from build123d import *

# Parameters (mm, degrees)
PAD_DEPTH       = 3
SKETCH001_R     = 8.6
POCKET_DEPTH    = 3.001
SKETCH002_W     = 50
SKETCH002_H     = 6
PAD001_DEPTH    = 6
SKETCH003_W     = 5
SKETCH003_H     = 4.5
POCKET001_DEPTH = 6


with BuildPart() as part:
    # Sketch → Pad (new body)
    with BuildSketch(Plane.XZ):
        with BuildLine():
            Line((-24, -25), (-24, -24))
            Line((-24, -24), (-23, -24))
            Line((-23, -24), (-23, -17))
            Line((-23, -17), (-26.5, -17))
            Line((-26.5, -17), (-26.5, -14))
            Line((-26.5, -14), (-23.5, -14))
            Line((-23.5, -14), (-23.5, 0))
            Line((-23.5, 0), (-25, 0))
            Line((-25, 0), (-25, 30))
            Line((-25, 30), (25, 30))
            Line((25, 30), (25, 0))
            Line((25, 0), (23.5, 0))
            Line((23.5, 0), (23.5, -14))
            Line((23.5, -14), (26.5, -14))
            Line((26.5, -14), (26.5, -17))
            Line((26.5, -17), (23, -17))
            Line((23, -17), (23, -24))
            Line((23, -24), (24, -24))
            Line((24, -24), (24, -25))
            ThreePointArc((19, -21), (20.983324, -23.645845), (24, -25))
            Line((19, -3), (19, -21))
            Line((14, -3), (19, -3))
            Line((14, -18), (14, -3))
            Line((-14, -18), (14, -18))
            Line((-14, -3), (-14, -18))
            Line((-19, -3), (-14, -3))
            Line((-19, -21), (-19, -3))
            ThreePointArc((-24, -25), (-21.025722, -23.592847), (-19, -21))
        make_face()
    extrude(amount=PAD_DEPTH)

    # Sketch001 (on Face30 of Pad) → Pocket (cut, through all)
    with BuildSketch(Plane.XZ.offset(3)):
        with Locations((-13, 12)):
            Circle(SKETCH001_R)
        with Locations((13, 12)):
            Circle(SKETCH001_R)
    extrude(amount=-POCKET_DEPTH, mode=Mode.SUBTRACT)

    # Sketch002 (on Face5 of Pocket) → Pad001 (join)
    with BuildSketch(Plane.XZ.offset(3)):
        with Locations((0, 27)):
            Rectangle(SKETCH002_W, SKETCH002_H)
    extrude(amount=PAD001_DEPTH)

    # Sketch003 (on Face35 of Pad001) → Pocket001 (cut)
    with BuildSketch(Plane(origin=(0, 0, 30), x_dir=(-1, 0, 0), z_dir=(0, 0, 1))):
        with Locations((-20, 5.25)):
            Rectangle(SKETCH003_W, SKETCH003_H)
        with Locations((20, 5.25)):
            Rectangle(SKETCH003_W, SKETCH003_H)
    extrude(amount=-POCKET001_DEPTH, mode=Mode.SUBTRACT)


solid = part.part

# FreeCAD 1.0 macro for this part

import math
import FreeCAD as App
import Part
import Sketcher
from FreeCAD import Vector

doc = App.newDocument("Part")
body = doc.addObject("PartDesign::Body", "Body")

# Sketch on XZ plane
sketch1 = doc.addObject("Sketcher::SketchObject", "Sketch")
body.addObject(sketch1)
sketch1.AttachmentSupport = (doc.XZ_Plane, [""])
sketch1.MapMode = "FlatFace"
sketch1.addGeometry(Part.LineSegment(Vector(-24, -24, 0), Vector(-24, -25, 0)), False)
sketch1.addGeometry(Part.ArcOfCircle(Part.Circle(Vector(-25.5, -18, 0), Vector(0, 0, 1), 7.1), math.radians(-78), math.radians(-25)), False)
sketch1.addGeometry(Part.LineSegment(Vector(-19, -21, 0), Vector(-19, -3, 0)), False)
sketch1.addGeometry(Part.LineSegment(Vector(-19, -3, 0), Vector(-14, -3, 0)), False)
sketch1.addGeometry(Part.LineSegment(Vector(-14, -3, 0), Vector(-14, -18, 0)), False)
sketch1.addGeometry(Part.LineSegment(Vector(-14, -18, 0), Vector(14, -18, 0)), False)
sketch1.addGeometry(Part.LineSegment(Vector(14, -18, 0), Vector(14, -3, 0)), False)
sketch1.addGeometry(Part.LineSegment(Vector(14, -3, 0), Vector(19, -3, 0)), False)
sketch1.addGeometry(Part.LineSegment(Vector(19, -3, 0), Vector(19, -21, 0)), False)
sketch1.addGeometry(Part.ArcOfCircle(Part.Circle(Vector(25.1, -18.5, 0), Vector(0, 0, 1), 6.6), math.radians(-158), math.radians(-100)), False)
sketch1.addGeometry(Part.LineSegment(Vector(24, -25, 0), Vector(24, -24, 0)), False)
sketch1.addGeometry(Part.LineSegment(Vector(24, -24, 0), Vector(23, -24, 0)), False)
sketch1.addGeometry(Part.LineSegment(Vector(23, -24, 0), Vector(23, -17, 0)), False)
sketch1.addGeometry(Part.LineSegment(Vector(23, -17, 0), Vector(26.5, -17, 0)), False)
sketch1.addGeometry(Part.LineSegment(Vector(26.5, -17, 0), Vector(26.5, -14, 0)), False)
sketch1.addGeometry(Part.LineSegment(Vector(26.5, -14, 0), Vector(23.5, -14, 0)), False)
sketch1.addGeometry(Part.LineSegment(Vector(23.5, -14, 0), Vector(23.5, 0, 0)), False)
sketch1.addGeometry(Part.LineSegment(Vector(23.5, 0, 0), Vector(25, 0, 0)), False)
sketch1.addGeometry(Part.LineSegment(Vector(25, 0, 0), Vector(25, 30, 0)), False)
sketch1.addGeometry(Part.LineSegment(Vector(25, 30, 0), Vector(-25, 30, 0)), False)
sketch1.addGeometry(Part.LineSegment(Vector(-25, 30, 0), Vector(-25, 0, 0)), False)
sketch1.addGeometry(Part.LineSegment(Vector(-25, 0, 0), Vector(-23.5, 0, 0)), False)
sketch1.addGeometry(Part.LineSegment(Vector(-23.5, 0, 0), Vector(-23.5, -14, 0)), False)
sketch1.addGeometry(Part.LineSegment(Vector(-23.5, -14, 0), Vector(-26.5, -14, 0)), False)
sketch1.addGeometry(Part.LineSegment(Vector(-26.5, -14, 0), Vector(-26.5, -17, 0)), False)
sketch1.addGeometry(Part.LineSegment(Vector(-26.5, -17, 0), Vector(-23, -17, 0)), False)
sketch1.addGeometry(Part.LineSegment(Vector(-23, -17, 0), Vector(-23, -24, 0)), False)
sketch1.addGeometry(Part.LineSegment(Vector(-23, -24, 0), Vector(-24, -24, 0)), False)
sketch1.addConstraint(Sketcher.Constraint("Coincident", 0, 2, 1, 1))
sketch1.addConstraint(Sketcher.Constraint("Coincident", 1, 2, 2, 1))
sketch1.addConstraint(Sketcher.Constraint("Coincident", 2, 2, 3, 1))
sketch1.addConstraint(Sketcher.Constraint("Coincident", 3, 2, 4, 1))
sketch1.addConstraint(Sketcher.Constraint("Coincident", 4, 2, 5, 1))
sketch1.addConstraint(Sketcher.Constraint("Coincident", 5, 2, 6, 1))
sketch1.addConstraint(Sketcher.Constraint("Coincident", 6, 2, 7, 1))
sketch1.addConstraint(Sketcher.Constraint("Coincident", 7, 2, 8, 1))
sketch1.addConstraint(Sketcher.Constraint("Coincident", 8, 2, 9, 1))
sketch1.addConstraint(Sketcher.Constraint("Coincident", 9, 2, 10, 1))
sketch1.addConstraint(Sketcher.Constraint("Coincident", 10, 2, 11, 1))
sketch1.addConstraint(Sketcher.Constraint("Coincident", 11, 2, 12, 1))
sketch1.addConstraint(Sketcher.Constraint("Coincident", 12, 2, 13, 1))
sketch1.addConstraint(Sketcher.Constraint("Coincident", 13, 2, 14, 1))
sketch1.addConstraint(Sketcher.Constraint("Coincident", 14, 2, 15, 1))
sketch1.addConstraint(Sketcher.Constraint("Coincident", 15, 2, 16, 1))
sketch1.addConstraint(Sketcher.Constraint("Coincident", 16, 2, 17, 1))
sketch1.addConstraint(Sketcher.Constraint("Coincident", 17, 2, 18, 1))
sketch1.addConstraint(Sketcher.Constraint("Coincident", 18, 2, 19, 1))
sketch1.addConstraint(Sketcher.Constraint("Coincident", 19, 2, 20, 1))
sketch1.addConstraint(Sketcher.Constraint("Coincident", 20, 2, 21, 1))
sketch1.addConstraint(Sketcher.Constraint("Coincident", 21, 2, 22, 1))
sketch1.addConstraint(Sketcher.Constraint("Coincident", 22, 2, 23, 1))
sketch1.addConstraint(Sketcher.Constraint("Coincident", 23, 2, 24, 1))
sketch1.addConstraint(Sketcher.Constraint("Coincident", 24, 2, 25, 1))
sketch1.addConstraint(Sketcher.Constraint("Coincident", 25, 2, 26, 1))
sketch1.addConstraint(Sketcher.Constraint("Coincident", 26, 2, 27, 1))
sketch1.addConstraint(Sketcher.Constraint("Coincident", 27, 2, 0, 1))
sketch1.addConstraint(Sketcher.Constraint("Vertical", 0))
sketch1.addConstraint(Sketcher.Constraint("Vertical", 2))
sketch1.addConstraint(Sketcher.Constraint("Horizontal", 3))
sketch1.addConstraint(Sketcher.Constraint("Vertical", 4))
sketch1.addConstraint(Sketcher.Constraint("Horizontal", 5))
sketch1.addConstraint(Sketcher.Constraint("Vertical", 6))
sketch1.addConstraint(Sketcher.Constraint("Horizontal", 7))
sketch1.addConstraint(Sketcher.Constraint("Vertical", 8))
sketch1.addConstraint(Sketcher.Constraint("Vertical", 10))
sketch1.addConstraint(Sketcher.Constraint("Horizontal", 11))
sketch1.addConstraint(Sketcher.Constraint("Vertical", 12))
sketch1.addConstraint(Sketcher.Constraint("Horizontal", 13))
sketch1.addConstraint(Sketcher.Constraint("Vertical", 14))
sketch1.addConstraint(Sketcher.Constraint("Horizontal", 15))
sketch1.addConstraint(Sketcher.Constraint("Vertical", 16))
sketch1.addConstraint(Sketcher.Constraint("Horizontal", 17))
sketch1.addConstraint(Sketcher.Constraint("Vertical", 18))
sketch1.addConstraint(Sketcher.Constraint("Horizontal", 19))
sketch1.addConstraint(Sketcher.Constraint("Vertical", 20))
sketch1.addConstraint(Sketcher.Constraint("Horizontal", 21))
sketch1.addConstraint(Sketcher.Constraint("Vertical", 22))
sketch1.addConstraint(Sketcher.Constraint("Horizontal", 23))
sketch1.addConstraint(Sketcher.Constraint("Vertical", 24))
sketch1.addConstraint(Sketcher.Constraint("Horizontal", 25))
sketch1.addConstraint(Sketcher.Constraint("Vertical", 26))
sketch1.addConstraint(Sketcher.Constraint("Horizontal", 27))
sketch1.addConstraint(Sketcher.Constraint("Symmetric", 17, 2, 20, 2, -1, 1))
sketch1.addConstraint(Sketcher.Constraint("Symmetric", 3, 2, 6, 2, -2))
sketch1.addConstraint(Sketcher.Constraint("Symmetric", 1, 2, 8, 2, -2))
sketch1.addConstraint(Sketcher.Constraint("Symmetric", 0, 2, 9, 2, -2))
sketch1.addConstraint(Sketcher.Constraint("Symmetric", 16, 2, 21, 2, -2))
sketch1.addConstraint(Sketcher.Constraint("Symmetric", 14, 2, 23, 2, -2))
sketch1.addConstraint(Sketcher.Constraint("Symmetric", 12, 2, 25, 2, -2))
sketch1.addConstraint(Sketcher.Constraint("Horizontal", 11, 2, 26, 2))
sketch1.addConstraint(Sketcher.Constraint("Equal", 27, 0))
sketch1.addConstraint(Sketcher.Constraint("Equal", 23, 14))
sketch1.addConstraint(Sketcher.Constraint("DistanceX", 3, 1, 3, 2, 5.0))
sketch1.addConstraint(Sketcher.Constraint("DistanceX", 5, 1, 5, 2, 28.0))
sketch1.addConstraint(Sketcher.Constraint("DistanceX", 11, 2, 11, 1, 1.0))
sketch1.addConstraint(Sketcher.Constraint("DistanceX", 15, 2, 15, 1, 3.0))
sketch1.addConstraint(Sketcher.Constraint("DistanceX", 19, 2, 19, 1, 50.0))
sketch1.addConstraint(Sketcher.Constraint("DistanceY", 2, 1, 2, 2, 18.0))
sketch1.addConstraint(Sketcher.Constraint("DistanceY", 4, 2, 4, 1, 15.0))
sketch1.addConstraint(Sketcher.Constraint("DistanceY", 12, 1, 12, 2, 7.0))
sketch1.addConstraint(Sketcher.Constraint("DistanceY", 16, 1, 16, 2, 14.0))
sketch1.addConstraint(Sketcher.Constraint("DistanceY", 18, 1, 18, 2, 30.0))
sketch1.addConstraint(Sketcher.Constraint("DistanceX", 13, 1, 13, 2, 3.5))
sketch1.addConstraint(Sketcher.Constraint("DistanceX", 17, 1, 17, 2, 1.5))
sketch1.addConstraint(Sketcher.Constraint("DistanceY", 1, 2, -1, 1, 21.0))
sketch1.addConstraint(Sketcher.Constraint("Radius", 1, 7.130002))
sketch1.addConstraint(Sketcher.Constraint("Radius", 9, 6.610002))
pad1 = doc.addObject("PartDesign::Pad", "Pad")
body.addObject(pad1)
pad1.Profile = sketch1
pad1.Length = 3

# Sketch on XZ plane
sketch2 = doc.addObject("Sketcher::SketchObject", "Sketch001")
body.addObject(sketch2)
sketch2.AttachmentSupport = (doc.XZ_Plane, [""])
sketch2.MapMode = "FlatFace"
sketch2.AttachmentOffset = App.Placement(Vector(0, 0, 3), App.Rotation())
sketch2.addGeometry(Part.Circle(Vector(-13, 12, 0), Vector(0, 0, 1), 9), False)
sketch2.addGeometry(Part.Circle(Vector(13, 12, 0), Vector(0, 0, 1), 9), False)
sketch2.addConstraint(Sketcher.Constraint("Equal", 0, 1))
sketch2.addConstraint(Sketcher.Constraint("Symmetric", 0, 3, 1, 3, -2))
sketch2.addConstraint(Sketcher.Constraint("Diameter", 0, 17.2))
sketch2.addConstraint(Sketcher.Constraint("DistanceX", 0, 3, -1, 1, 13.0))
sketch2.addConstraint(Sketcher.Constraint("DistanceY", -1, 1, 0, 3, 12.0))
pocket1 = doc.addObject("PartDesign::Pocket", "Pocket")
body.addObject(pocket1)
pocket1.Profile = sketch2
pocket1.Type = "ThroughAll"

# Sketch on XZ plane
sketch3 = doc.addObject("Sketcher::SketchObject", "Sketch002")
body.addObject(sketch3)
sketch3.AttachmentSupport = (doc.XZ_Plane, [""])
sketch3.MapMode = "FlatFace"
sketch3.AttachmentOffset = App.Placement(Vector(0, 0, 3), App.Rotation())
sketch3.addGeometry(Part.LineSegment(Vector(-25, 30, 0), Vector(-25, 24, 0)), False)
sketch3.addGeometry(Part.LineSegment(Vector(-25, 24, 0), Vector(25, 24, 0)), False)
sketch3.addGeometry(Part.LineSegment(Vector(25, 24, 0), Vector(25, 30, 0)), False)
sketch3.addGeometry(Part.LineSegment(Vector(25, 30, 0), Vector(-25, 30, 0)), False)
sketch3.addConstraint(Sketcher.Constraint("Coincident", 0, 2, 1, 1))
sketch3.addConstraint(Sketcher.Constraint("Coincident", 1, 2, 2, 1))
sketch3.addConstraint(Sketcher.Constraint("Coincident", 2, 2, 3, 1))
sketch3.addConstraint(Sketcher.Constraint("Coincident", 3, 2, 0, 1))
sketch3.addConstraint(Sketcher.Constraint("Vertical", 0))
sketch3.addConstraint(Sketcher.Constraint("Horizontal", 1))
sketch3.addConstraint(Sketcher.Constraint("Vertical", 2))
sketch3.addConstraint(Sketcher.Constraint("Horizontal", 3))
sketch3.addConstraint(Sketcher.Constraint("DistanceX", 1, 1, 1, 2, 50.0))
sketch3.addConstraint(Sketcher.Constraint("DistanceY", 0, 2, 0, 1, 6.0))
sketch3.addConstraint(Sketcher.Constraint("DistanceX", 0, 2, -1, 1, 25.0))
sketch3.addConstraint(Sketcher.Constraint("DistanceY", -1, 1, 0, 2, 24.0))
pad2 = doc.addObject("PartDesign::Pad", "Pad001")
body.addObject(pad2)
pad2.Profile = sketch3
pad2.Length = 6

# Sketch on XY plane
sketch4 = doc.addObject("Sketcher::SketchObject", "Sketch003")
body.addObject(sketch4)
sketch4.AttachmentSupport = (doc.XY_Plane, [""])
sketch4.MapMode = "FlatFace"
sketch4.AttachmentOffset = App.Placement(Vector(0, 0, 30), App.Rotation())
sketch4.addGeometry(Part.LineSegment(Vector(22.5, -7.5, 0), Vector(22.5, -3, 0)), False)
sketch4.addGeometry(Part.LineSegment(Vector(22.5, -3, 0), Vector(17.5, -3, 0)), False)
sketch4.addGeometry(Part.LineSegment(Vector(17.5, -3, 0), Vector(17.5, -7.5, 0)), False)
sketch4.addGeometry(Part.LineSegment(Vector(17.5, -7.5, 0), Vector(22.5, -7.5, 0)), False)
sketch4.addGeometry(Part.LineSegment(Vector(-17.5, -7.5, 0), Vector(-17.5, -3, 0)), False)
sketch4.addGeometry(Part.LineSegment(Vector(-17.5, -3, 0), Vector(-22.5, -3, 0)), False)
sketch4.addGeometry(Part.LineSegment(Vector(-22.5, -3, 0), Vector(-22.5, -7.5, 0)), False)
sketch4.addGeometry(Part.LineSegment(Vector(-22.5, -7.5, 0), Vector(-17.5, -7.5, 0)), False)
sketch4.addConstraint(Sketcher.Constraint("Coincident", 0, 2, 1, 1))
sketch4.addConstraint(Sketcher.Constraint("Coincident", 1, 2, 2, 1))
sketch4.addConstraint(Sketcher.Constraint("Coincident", 2, 2, 3, 1))
sketch4.addConstraint(Sketcher.Constraint("Coincident", 3, 2, 0, 1))
sketch4.addConstraint(Sketcher.Constraint("Coincident", 4, 2, 5, 1))
sketch4.addConstraint(Sketcher.Constraint("Coincident", 5, 2, 6, 1))
sketch4.addConstraint(Sketcher.Constraint("Coincident", 6, 2, 7, 1))
sketch4.addConstraint(Sketcher.Constraint("Coincident", 7, 2, 4, 1))
sketch4.addConstraint(Sketcher.Constraint("Vertical", 0))
sketch4.addConstraint(Sketcher.Constraint("Horizontal", 1))
sketch4.addConstraint(Sketcher.Constraint("Vertical", 2))
sketch4.addConstraint(Sketcher.Constraint("Horizontal", 3))
sketch4.addConstraint(Sketcher.Constraint("Vertical", 4))
sketch4.addConstraint(Sketcher.Constraint("Horizontal", 5))
sketch4.addConstraint(Sketcher.Constraint("Vertical", 6))
sketch4.addConstraint(Sketcher.Constraint("Horizontal", 7))
sketch4.addConstraint(Sketcher.Constraint("Symmetric", 1, 2, 4, 2, -2))
sketch4.addConstraint(Sketcher.Constraint("Symmetric", 3, 2, 6, 2, -2))
sketch4.addConstraint(Sketcher.Constraint("DistanceX", 1, 2, 1, 1, 5.0))
sketch4.addConstraint(Sketcher.Constraint("DistanceY", 0, 1, 0, 2, 4.5))
sketch4.addConstraint(Sketcher.Constraint("DistanceY", 0, 2, -1, 1, 3.0))
sketch4.addConstraint(Sketcher.Constraint("DistanceX", 4, 2, 1, 2, 35.0))
pocket2 = doc.addObject("PartDesign::Pocket", "Pocket001")
body.addObject(pocket2)
pocket2.Profile = sketch4
pocket2.Length = 6

doc.recompute()
